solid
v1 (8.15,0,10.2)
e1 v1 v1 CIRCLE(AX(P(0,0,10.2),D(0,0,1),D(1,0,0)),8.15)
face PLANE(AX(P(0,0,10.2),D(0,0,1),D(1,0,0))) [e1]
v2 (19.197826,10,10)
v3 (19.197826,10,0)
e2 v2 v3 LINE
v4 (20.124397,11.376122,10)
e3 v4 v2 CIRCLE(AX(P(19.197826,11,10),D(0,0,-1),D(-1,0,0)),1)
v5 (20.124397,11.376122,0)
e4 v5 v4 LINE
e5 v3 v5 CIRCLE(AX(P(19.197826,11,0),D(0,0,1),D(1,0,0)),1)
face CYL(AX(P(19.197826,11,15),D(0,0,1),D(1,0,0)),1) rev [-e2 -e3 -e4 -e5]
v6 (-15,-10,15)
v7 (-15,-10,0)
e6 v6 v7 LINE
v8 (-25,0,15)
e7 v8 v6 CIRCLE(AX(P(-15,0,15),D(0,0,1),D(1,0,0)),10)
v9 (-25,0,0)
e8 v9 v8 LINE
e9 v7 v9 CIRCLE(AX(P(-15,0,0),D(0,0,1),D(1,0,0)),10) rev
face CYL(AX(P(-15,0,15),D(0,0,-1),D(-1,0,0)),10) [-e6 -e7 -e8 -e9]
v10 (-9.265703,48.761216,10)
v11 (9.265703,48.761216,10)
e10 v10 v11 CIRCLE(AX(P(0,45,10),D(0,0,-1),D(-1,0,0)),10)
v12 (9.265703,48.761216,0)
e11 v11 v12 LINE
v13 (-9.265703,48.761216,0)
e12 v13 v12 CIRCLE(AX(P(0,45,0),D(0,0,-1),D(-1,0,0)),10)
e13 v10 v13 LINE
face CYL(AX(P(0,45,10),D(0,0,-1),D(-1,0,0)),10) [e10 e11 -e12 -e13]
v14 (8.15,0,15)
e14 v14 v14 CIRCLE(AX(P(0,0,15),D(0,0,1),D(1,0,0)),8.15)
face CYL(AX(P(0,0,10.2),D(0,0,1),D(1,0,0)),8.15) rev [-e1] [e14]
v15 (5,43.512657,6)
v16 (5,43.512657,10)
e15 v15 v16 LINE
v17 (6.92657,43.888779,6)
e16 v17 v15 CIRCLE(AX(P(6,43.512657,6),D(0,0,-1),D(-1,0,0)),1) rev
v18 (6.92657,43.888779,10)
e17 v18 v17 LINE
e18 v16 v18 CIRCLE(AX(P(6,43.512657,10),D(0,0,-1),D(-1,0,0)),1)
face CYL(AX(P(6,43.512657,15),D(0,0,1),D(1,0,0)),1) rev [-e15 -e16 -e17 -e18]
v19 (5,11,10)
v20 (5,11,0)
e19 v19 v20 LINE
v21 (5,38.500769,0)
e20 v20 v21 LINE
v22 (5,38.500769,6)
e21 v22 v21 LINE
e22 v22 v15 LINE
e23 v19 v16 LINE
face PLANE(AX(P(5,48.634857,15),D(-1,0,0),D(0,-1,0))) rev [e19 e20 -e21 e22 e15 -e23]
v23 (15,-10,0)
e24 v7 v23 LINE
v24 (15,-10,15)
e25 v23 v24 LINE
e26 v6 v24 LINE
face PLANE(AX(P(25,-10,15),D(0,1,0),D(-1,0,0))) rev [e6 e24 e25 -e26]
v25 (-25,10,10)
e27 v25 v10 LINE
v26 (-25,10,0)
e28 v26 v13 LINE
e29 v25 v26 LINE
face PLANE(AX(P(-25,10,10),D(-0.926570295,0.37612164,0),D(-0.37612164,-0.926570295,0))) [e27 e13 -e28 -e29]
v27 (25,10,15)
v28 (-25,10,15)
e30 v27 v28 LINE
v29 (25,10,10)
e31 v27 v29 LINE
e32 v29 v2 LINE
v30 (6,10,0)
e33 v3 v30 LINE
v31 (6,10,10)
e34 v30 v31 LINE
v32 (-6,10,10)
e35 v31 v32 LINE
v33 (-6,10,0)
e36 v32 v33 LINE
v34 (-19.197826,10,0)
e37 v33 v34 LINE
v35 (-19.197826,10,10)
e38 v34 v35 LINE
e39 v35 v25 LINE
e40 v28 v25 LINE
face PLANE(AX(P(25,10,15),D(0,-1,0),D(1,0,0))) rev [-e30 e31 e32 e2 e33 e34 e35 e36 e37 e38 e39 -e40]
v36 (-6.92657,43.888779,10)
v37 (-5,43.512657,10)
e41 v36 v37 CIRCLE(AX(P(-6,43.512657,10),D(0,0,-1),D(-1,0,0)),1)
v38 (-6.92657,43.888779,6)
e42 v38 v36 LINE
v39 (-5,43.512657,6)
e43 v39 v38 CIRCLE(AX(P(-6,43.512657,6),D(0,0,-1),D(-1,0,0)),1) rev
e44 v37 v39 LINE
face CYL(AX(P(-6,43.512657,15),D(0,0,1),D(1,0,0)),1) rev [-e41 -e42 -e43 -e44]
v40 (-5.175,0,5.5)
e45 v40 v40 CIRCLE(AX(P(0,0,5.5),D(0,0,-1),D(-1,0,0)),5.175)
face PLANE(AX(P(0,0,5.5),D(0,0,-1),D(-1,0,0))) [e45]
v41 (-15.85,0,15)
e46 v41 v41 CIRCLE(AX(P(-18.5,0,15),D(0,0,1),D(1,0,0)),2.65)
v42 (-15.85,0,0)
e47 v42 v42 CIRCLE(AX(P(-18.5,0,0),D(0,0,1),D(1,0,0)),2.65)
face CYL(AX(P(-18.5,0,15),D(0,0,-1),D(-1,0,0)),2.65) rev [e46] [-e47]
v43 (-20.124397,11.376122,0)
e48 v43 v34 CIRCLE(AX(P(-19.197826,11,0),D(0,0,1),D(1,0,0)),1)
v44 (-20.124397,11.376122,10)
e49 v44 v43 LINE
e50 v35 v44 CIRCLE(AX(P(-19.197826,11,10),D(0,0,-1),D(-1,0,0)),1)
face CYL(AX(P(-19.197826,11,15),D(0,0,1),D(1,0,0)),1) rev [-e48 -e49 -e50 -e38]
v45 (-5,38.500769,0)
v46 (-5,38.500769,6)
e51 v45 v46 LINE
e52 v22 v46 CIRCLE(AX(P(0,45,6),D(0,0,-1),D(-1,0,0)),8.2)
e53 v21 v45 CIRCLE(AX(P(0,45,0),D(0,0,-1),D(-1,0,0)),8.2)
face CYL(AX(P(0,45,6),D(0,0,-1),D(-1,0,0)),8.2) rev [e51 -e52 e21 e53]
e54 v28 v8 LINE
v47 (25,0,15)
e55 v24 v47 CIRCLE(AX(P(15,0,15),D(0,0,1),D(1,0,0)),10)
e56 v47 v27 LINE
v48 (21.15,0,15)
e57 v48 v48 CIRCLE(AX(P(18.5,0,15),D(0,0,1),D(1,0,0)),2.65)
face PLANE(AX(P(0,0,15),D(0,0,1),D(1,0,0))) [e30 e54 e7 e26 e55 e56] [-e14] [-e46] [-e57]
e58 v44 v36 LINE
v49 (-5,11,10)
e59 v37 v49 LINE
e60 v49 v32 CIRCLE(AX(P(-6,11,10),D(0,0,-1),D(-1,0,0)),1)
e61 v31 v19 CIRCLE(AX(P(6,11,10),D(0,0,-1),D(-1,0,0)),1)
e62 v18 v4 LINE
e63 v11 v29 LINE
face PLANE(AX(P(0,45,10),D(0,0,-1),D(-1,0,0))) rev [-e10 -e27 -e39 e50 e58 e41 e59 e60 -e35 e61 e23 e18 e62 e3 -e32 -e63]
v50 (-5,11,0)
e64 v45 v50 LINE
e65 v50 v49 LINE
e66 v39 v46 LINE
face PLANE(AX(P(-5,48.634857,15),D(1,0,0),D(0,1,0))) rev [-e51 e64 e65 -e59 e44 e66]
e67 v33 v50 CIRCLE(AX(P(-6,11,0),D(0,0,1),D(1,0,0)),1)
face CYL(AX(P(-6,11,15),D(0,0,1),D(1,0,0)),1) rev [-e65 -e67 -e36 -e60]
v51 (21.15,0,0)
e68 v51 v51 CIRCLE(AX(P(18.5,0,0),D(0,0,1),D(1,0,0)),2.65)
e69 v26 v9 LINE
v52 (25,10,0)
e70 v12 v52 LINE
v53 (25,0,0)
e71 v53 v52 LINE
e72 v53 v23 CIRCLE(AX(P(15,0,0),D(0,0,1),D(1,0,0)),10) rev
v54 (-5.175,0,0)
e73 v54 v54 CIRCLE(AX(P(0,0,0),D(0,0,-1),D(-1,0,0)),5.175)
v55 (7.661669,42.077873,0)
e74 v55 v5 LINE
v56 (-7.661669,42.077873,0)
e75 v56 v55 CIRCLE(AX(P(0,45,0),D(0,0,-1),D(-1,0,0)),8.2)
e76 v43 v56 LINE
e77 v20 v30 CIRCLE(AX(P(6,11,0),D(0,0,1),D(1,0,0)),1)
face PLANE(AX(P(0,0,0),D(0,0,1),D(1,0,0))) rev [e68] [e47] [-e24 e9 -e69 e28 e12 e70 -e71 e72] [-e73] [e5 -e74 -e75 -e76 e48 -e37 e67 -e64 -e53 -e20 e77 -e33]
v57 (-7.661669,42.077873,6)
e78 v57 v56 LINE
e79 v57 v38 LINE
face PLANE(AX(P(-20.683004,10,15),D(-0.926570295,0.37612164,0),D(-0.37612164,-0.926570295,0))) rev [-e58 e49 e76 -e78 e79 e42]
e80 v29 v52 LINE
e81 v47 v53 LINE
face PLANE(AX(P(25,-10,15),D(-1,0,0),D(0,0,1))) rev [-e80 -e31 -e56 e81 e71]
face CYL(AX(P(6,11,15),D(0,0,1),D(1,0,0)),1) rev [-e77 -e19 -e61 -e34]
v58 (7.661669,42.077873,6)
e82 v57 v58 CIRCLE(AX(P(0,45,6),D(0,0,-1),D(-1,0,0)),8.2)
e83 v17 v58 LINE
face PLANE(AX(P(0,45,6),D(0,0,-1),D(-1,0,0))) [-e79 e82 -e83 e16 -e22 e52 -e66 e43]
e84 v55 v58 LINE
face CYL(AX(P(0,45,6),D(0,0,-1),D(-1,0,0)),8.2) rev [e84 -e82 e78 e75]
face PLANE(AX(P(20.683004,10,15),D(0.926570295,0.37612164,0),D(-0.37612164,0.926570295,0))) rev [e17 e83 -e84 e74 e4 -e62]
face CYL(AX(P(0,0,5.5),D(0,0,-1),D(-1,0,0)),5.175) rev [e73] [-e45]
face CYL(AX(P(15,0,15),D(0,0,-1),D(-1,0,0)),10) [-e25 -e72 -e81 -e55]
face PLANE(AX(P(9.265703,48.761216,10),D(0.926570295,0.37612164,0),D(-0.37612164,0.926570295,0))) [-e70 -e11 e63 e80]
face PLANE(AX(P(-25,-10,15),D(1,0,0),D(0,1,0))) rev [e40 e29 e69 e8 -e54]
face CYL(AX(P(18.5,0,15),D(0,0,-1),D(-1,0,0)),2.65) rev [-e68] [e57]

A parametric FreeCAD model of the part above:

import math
import FreeCAD as App
import Part
import Sketcher

V = App.Vector
Q = App.Units.Quantity


def edges_at(feature, points):
    """Names of the edges that pass closest to the given points."""
    edges = feature.Shape.Edges
    near = lambda p: min(range(len(edges)), key=lambda i: edges[i].distToShape(Part.Vertex(*p))[0])
    return sorted({f"Edge{near(p) + 1}" for p in points})

doc = App.newDocument("Part")
params = doc.addObject("Spreadsheet::Sheet", "Params")
for row, (alias, value) in enumerate([
    ("sketch1_diameter", "5.3 mm"),
    ("sketch1_width", "50 mm"),
    ("sketch1_height", "20 mm"),
    ("pad1_length", "15 mm"),
    ("sketch2_diameter", "10.35 mm"),
    ("pocket1_length", "5.5 mm"),
    ("sketch3_diameter", "16.3 mm"),
    ("pocket2_length", "4.8 mm"),
    ("sketch4_radius", "10 mm"),
    ("sketch4_width", "50 mm"),
    ("pad2_length", "10 mm"),
    ("sketch5_diameter", "16.4 mm"),
    ("pocket3_length", "6 mm"),
    ("fillet_radius", "1 mm"),
    ("fillet2_radius", "10 mm"),
], start=1):
    params.set(f"A{row}", alias)
    params.set(f"B{row}", "=" + value)
    params.setAlias(f"B{row}", alias)

body = doc.addObject("PartDesign::Body", "Body")

sketch1 = body.newObject("Sketcher::SketchObject", "Sketch")
sketch1.AttachmentSupport = (doc.getObject("XY_Plane"), [""])
sketch1.MapMode = "FlatFace"
sketch1.addGeometry([
    Part.LineSegment(V(-25, 10, 0), V(-25, -10, 0)),
    Part.LineSegment(V(-25, -10, 0), V(25, -10, 0)),
    Part.LineSegment(V(25, -10, 0), V(25, 10, 0)),
    Part.LineSegment(V(25, 10, 0), V(-25, 10, 0)),
    Part.Circle(V(-18.5, 0, 0), V(0, 0, 1), 2.6),
    Part.Circle(V(18.5, 0, 0), V(0, 0, 1), 2.6),
], False)
sketch1.addConstraint([
    Sketcher.Constraint("Coincident", 0, 2, 1, 1),
    Sketcher.Constraint("Coincident", 1, 2, 2, 1),
    Sketcher.Constraint("Coincident", 2, 2, 3, 1),
    Sketcher.Constraint("Coincident", 3, 2, 0, 1),
    Sketcher.Constraint("Vertical", 0),
    Sketcher.Constraint("Horizontal", 1),
    Sketcher.Constraint("Vertical", 2),
    Sketcher.Constraint("Horizontal", 3),
    Sketcher.Constraint("Equal", 4, 5),
    Sketcher.Constraint("Symmetric", 4, 3, 5, 3, -1, 1),
    Sketcher.Constraint("Symmetric", 0, 2, 2, 2, -1, 1),
    Sketcher.Constraint("PointOnObject", 4, 3, -1),
    Sketcher.Constraint("Diameter", 4, Q("5.3 mm")),
    Sketcher.Constraint("DistanceX", 1, 1, 1, 2, Q("50 mm")),
    Sketcher.Constraint("DistanceY", 0, 2, 0, 1, Q("20 mm")),
    Sketcher.Constraint("DistanceX", 4, 3, 5, 3, Q("37 mm")),
])
sketch1.setExpression("Constraints[12]", "Params.sketch1_diameter")
sketch1.setExpression("Constraints[13]", "Params.sketch1_width")
sketch1.setExpression("Constraints[14]", "Params.sketch1_height")
pad1 = body.newObject("PartDesign::Pad", "Pad")
pad1.Profile = sketch1
pad1.setExpression("Length", "Params.pad1_length")

sketch2 = body.newObject("Sketcher::SketchObject", "Sketch001")
sketch2.AttachmentSupport = (doc.getObject("XY_Plane"), [""])
sketch2.MapMode = "FlatFace"
sketch2.addGeometry(Part.Circle(V(0, 0, 0), V(0, 0, 1), 5), False)
sketch2.addConstraint([
    Sketcher.Constraint("Coincident", 0, 3, -1, 1),
    Sketcher.Constraint("Diameter", 0, Q("10.35 mm")),
])
sketch2.setExpression("Constraints[1]", "Params.sketch2_diameter")
pocket1 = body.newObject("PartDesign::Pocket", "Pocket")
pocket1.Profile = sketch2
pocket1.setExpression("Length", "Params.pocket1_length")
pocket1.Reversed = True

sketch3 = body.newObject("Sketcher::SketchObject", "Sketch002")
sketch3.AttachmentSupport = (doc.getObject("XY_Plane"), [""])
sketch3.MapMode = "FlatFace"
sketch3.AttachmentOffset = App.Placement(V(0, 0, 15), App.Rotation())
sketch3.addGeometry(Part.Circle(V(0, 0, 0), V(0, 0, 1), 8), False)
sketch3.addConstraint([
    Sketcher.Constraint("Coincident", 0, 3, -1, 1),
    Sketcher.Constraint("Diameter", 0, Q("16.3 mm")),
])
sketch3.setExpression("Constraints[1]", "Params.sketch3_diameter")
pocket2 = body.newObject("PartDesign::Pocket", "Pocket001")
pocket2.Profile = sketch3
pocket2.setExpression("Length", "Params.pocket2_length")

sketch4 = body.newObject("Sketcher::SketchObject", "Sketch003")
sketch4.AttachmentSupport = (doc.getObject("XY_Plane"), [""])
sketch4.MapMode = "FlatFace"
sketch4.addGeometry([
    Part.LineSegment(V(-25, 10, 0), V(-9, 49, 0)),
    Part.ArcOfCircle(Part.Circle(V(0, 45, 0), V(0, 0, 1), 10), math.radians(22), math.radians(158)),
    Part.LineSegment(V(9, 49, 0), V(25, 10, 0)),
    Part.LineSegment(V(25, 10, 0), V(-25, 10, 0)),
], False)
sketch4.addConstraint([
    Sketcher.Constraint("Tangent", 0, 2, 1, 2),
    Sketcher.Constraint("Tangent", 1, 1, 2, 1),
    Sketcher.Constraint("Coincident", 2, 2, 3, 1),
    Sketcher.Constraint("Coincident", 3, 2, 0, 1),
    Sketcher.Constraint("Horizontal", 3),
    Sketcher.Constraint("Symmetric", 0, 2, 1, 1, -2),
    Sketcher.Constraint("Radius", 1, Q("10 mm")),
    Sketcher.Constraint("DistanceX", 3, 2, 3, 1, Q("50 mm")),
    Sketcher.Constraint("DistanceY", -1, 1, 1, 3, Q("45 mm")),
    Sketcher.Constraint("DistanceY", -1, 1, 2, 2, Q("10 mm")),
])
sketch4.setExpression("Constraints[6]", "Params.sketch4_radius")
sketch4.setExpression("Constraints[7]", "Params.sketch4_width")
pad2 = body.newObject("PartDesign::Pad", "Pad001")
pad2.Profile = sketch4
pad2.setExpression("Length", "Params.pad2_length")

sketch5 = body.newObject("Sketcher::SketchObject", "Sketch004")
sketch5.AttachmentSupport = (doc.getObject("XY_Plane"), [""])
sketch5.MapMode = "FlatFace"
sketch5.addGeometry(Part.Circle(V(0, 45, 0), V(0, 0, 1), 8), False)
sketch5.addConstraint([
    Sketcher.Constraint("PointOnObject", 0, 3, -2),
    Sketcher.Constraint("Diameter", 0, Q("16.4 mm")),
    Sketcher.Constraint("DistanceY", -1, 1, 0, 3, Q("45 mm")),
])
sketch5.setExpression("Constraints[1]", "Params.sketch5_diameter")
pocket3 = body.newObject("PartDesign::Pocket", "Pocket002")
pocket3.Profile = sketch5
pocket3.setExpression("Length", "Params.pocket3_length")
pocket3.Reversed = True

sketch6 = body.newObject("Sketcher::SketchObject", "Sketch005")
sketch6.AttachmentSupport = (doc.getObject("XY_Plane"), [""])
sketch6.MapMode = "FlatFace"
sketch6.addGeometry([
    Part.LineSegment(V(5, 49, 0), V(21, 10, 0)),
    Part.LineSegment(V(21, 10, 0), V(5, 10, 0)),
    Part.LineSegment(V(5, 10, 0), V(5, 49, 0)),
    Part.LineSegment(V(-5, 10, 0), V(-21, 10, 0)),
    Part.LineSegment(V(-21, 10, 0), V(-5, 49, 0)),
    Part.LineSegment(V(-5, 49, 0), V(-5, 10, 0)),
], False)
sketch6.addConstraint([
    Sketcher.Constraint("Coincident", 0, 2, 1, 1),
    Sketcher.Constraint("Coincident", 1, 2, 2, 1),
    Sketcher.Constraint("Coincident", 2, 2, 0, 1),
    Sketcher.Constraint("Coincident", 3, 2, 4, 1),
    Sketcher.Constraint("Coincident", 4, 2, 5, 1),
    Sketcher.Constraint("Coincident", 5, 2, 3, 1),
    Sketcher.Constraint("Horizontal", 1),
    Sketcher.Constraint("Vertical", 2),
    Sketcher.Constraint("Horizontal", 3),
    Sketcher.Constraint("Vertical", 5),
    Sketcher.Constraint("Symmetric", 0, 2, 3, 2, -2),
    Sketcher.Constraint("Symmetric", 2, 2, 4, 2, -2),
    Sketcher.Constraint("DistanceY", -1, 1, 0, 2, Q("10 mm")),
    Sketcher.Constraint("DistanceX", -1, 1, 1, 2, Q("5 mm")),
    Sketcher.Constraint("Distance", 0, Q("41.696629 mm")),
    Sketcher.Constraint("DistanceX", 1, 2, 1, 1, Q("15.683004 mm")),
])
pocket4 = body.newObject("PartDesign::Pocket", "Pocket003")
pocket4.Profile = sketch6
pocket4.Type = "ThroughAll"
pocket4.Reversed = True
doc.recompute()

fillet = body.newObject("PartDesign::Fillet", "Fillet")
fillet.Base = (pocket4, edges_at(pocket4, [
    (5, 10, 5),
    (20.683, 10, 5),
    (5, 48.635, 8),
    (-20.683, 10, 5),
    (-5, 10, 5),
    (-5, 48.635, 8),
]))
fillet.setExpression("Radius", "Params.fillet_radius")
doc.recompute()

fillet2 = body.newObject("PartDesign::Fillet", "Fillet001")
fillet2.Base = (fillet, edges_at(fillet, [(25, -10, 7.5), (-25, -10, 7.5)]))
fillet2.setExpression("Radius", "Params.fillet2_radius")

doc.recompute()
